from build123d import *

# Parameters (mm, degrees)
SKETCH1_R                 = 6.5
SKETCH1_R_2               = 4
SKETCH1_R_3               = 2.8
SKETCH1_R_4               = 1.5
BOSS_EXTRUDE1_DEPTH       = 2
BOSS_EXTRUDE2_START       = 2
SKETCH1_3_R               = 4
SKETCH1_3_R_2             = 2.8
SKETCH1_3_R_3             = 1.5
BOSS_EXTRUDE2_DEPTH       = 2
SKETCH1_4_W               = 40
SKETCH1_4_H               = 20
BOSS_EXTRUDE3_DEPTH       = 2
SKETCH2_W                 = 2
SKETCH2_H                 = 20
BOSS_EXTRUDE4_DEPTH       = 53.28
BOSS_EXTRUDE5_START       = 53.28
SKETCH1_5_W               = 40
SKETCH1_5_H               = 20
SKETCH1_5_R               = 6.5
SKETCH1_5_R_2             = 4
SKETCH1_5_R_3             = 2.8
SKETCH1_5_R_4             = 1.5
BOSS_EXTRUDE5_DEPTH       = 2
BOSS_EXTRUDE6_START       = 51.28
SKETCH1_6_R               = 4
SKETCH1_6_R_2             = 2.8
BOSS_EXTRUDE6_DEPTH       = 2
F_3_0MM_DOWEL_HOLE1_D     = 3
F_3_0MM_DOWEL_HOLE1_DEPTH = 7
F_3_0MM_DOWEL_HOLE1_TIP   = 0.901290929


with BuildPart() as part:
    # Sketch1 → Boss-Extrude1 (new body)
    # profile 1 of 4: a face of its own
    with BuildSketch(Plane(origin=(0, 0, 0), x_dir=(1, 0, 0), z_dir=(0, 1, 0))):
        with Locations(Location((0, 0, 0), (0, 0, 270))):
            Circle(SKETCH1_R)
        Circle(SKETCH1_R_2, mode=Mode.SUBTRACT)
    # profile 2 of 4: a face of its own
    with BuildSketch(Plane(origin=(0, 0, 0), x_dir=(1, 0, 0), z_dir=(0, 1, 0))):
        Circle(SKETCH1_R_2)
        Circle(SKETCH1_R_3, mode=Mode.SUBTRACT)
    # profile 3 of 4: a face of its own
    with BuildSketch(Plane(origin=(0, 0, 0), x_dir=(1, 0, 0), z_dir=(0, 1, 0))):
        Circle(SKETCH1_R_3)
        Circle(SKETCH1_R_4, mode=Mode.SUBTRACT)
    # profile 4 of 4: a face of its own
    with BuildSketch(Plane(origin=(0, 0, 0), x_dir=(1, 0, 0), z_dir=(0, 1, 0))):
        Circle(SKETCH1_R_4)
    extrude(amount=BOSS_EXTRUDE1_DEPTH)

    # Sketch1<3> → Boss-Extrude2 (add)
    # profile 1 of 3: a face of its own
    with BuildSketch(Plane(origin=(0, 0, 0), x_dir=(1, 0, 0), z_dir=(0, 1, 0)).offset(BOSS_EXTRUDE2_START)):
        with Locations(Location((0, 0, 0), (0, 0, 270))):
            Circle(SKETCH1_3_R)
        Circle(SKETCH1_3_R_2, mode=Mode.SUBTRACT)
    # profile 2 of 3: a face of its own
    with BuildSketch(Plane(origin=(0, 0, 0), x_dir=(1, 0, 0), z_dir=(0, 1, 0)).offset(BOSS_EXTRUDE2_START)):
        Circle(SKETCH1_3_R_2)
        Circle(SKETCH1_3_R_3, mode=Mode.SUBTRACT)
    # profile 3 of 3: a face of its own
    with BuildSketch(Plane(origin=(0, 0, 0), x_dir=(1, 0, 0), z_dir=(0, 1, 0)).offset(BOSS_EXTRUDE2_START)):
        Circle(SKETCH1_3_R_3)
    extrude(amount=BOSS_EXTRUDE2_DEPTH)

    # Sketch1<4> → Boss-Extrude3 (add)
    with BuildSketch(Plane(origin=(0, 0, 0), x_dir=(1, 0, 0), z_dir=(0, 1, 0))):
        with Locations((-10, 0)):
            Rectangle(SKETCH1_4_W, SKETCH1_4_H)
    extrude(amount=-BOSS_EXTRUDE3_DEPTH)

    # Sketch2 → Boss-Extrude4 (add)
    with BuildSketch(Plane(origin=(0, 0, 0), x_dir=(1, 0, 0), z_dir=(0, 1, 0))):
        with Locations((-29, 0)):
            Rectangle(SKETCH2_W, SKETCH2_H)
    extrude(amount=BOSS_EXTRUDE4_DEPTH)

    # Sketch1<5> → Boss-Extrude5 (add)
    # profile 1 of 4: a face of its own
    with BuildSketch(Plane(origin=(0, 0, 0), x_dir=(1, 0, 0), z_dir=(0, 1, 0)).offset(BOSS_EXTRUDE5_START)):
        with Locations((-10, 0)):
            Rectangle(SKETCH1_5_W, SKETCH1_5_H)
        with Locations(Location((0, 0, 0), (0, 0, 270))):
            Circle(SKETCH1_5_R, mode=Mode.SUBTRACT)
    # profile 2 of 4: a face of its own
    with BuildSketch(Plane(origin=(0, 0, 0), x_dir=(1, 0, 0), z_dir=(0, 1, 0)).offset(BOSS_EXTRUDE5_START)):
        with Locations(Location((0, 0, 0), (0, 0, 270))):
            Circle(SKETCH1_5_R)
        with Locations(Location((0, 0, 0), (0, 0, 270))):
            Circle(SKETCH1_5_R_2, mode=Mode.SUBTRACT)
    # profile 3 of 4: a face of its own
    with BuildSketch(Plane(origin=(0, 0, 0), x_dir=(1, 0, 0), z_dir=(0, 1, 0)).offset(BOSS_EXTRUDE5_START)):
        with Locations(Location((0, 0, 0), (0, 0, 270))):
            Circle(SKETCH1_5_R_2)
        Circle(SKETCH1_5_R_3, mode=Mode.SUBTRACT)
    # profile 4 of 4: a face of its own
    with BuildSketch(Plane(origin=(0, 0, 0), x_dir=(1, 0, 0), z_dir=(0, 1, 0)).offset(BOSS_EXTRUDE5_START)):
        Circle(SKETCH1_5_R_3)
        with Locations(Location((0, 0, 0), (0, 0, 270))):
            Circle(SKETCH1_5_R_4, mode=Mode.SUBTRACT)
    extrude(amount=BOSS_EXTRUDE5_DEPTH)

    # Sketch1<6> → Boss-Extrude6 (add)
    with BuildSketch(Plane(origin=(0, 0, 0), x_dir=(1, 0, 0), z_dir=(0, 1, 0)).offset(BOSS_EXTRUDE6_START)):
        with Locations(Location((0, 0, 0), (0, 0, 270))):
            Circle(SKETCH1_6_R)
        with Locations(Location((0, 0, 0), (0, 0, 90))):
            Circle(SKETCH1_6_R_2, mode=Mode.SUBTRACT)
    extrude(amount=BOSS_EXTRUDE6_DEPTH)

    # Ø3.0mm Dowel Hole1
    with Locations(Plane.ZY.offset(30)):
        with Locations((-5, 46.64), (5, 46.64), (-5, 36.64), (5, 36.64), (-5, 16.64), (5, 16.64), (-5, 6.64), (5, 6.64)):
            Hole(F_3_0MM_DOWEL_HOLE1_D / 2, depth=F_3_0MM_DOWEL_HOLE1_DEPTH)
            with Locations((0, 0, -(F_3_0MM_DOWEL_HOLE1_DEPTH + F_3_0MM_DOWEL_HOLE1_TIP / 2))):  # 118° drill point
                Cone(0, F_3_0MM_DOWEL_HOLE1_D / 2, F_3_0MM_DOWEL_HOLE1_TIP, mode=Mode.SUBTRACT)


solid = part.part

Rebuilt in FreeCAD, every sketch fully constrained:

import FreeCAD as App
import Part
import Sketcher
from FreeCAD import Vector

doc = App.newDocument("Part")
body = doc.addObject("PartDesign::Body", "Body")

sketch1 = doc.addObject("Sketcher::SketchObject", "Sketch")
body.addObject(sketch1)
sketch1.AttachmentSupport = (doc.XZ_Plane, [""])
sketch1.MapMode = "FlatFace"
sketch1.addGeometry(Part.Circle(Vector(0, 0, 0), Vector(0, 0, 1), 6), False)
sketch1.addConstraint([
    Sketcher.Constraint("Coincident", 0, 3, -1, 1),
    Sketcher.Constraint("Diameter", 0, 13.0),
])
pad1 = doc.addObject("PartDesign::Pad", "Pad")
body.addObject(pad1)
pad1.Profile = sketch1
pad1.Length = 2
pad1.Reversed = True

sketch2 = doc.addObject("Sketcher::SketchObject", "Sketch001")
body.addObject(sketch2)
sketch2.AttachmentSupport = (doc.XZ_Plane, [""])
sketch2.MapMode = "FlatFace"
sketch2.AttachmentOffset = App.Placement(Vector(0, 0, -2), App.Rotation())
sketch2.addGeometry(Part.Circle(Vector(0, 0, 0), Vector(0, 0, 1), 4), False)
sketch2.addConstraint([
    Sketcher.Constraint("Coincident", 0, 3, -1, 1),
    Sketcher.Constraint("Diameter", 0, 8.0),
])
pad2 = doc.addObject("PartDesign::Pad", "Pad001")
body.addObject(pad2)
pad2.Profile = sketch2
pad2.Length = 2
pad2.Reversed = True

sketch3 = doc.addObject("Sketcher::SketchObject", "Sketch002")
body.addObject(sketch3)
sketch3.AttachmentSupport = (doc.XZ_Plane, [""])
sketch3.MapMode = "FlatFace"
sketch3.addGeometry([
    Part.LineSegment(Vector(-30, -10, 0), Vector(-30, 10, 0)),
    Part.LineSegment(Vector(-30, 10, 0), Vector(10, 10, 0)),
    Part.LineSegment(Vector(10, 10, 0), Vector(10, -10, 0)),
    Part.LineSegment(Vector(10, -10, 0), Vector(-30, -10, 0)),
], False)
sketch3.addConstraint([
    Sketcher.Constraint("Coincident", 0, 2, 1, 1),
    Sketcher.Constraint("Coincident", 1, 2, 2, 1),
    Sketcher.Constraint("Coincident", 2, 2, 3, 1),
    Sketcher.Constraint("Coincident", 3, 2, 0, 1),
    Sketcher.Constraint("Vertical", 0),
    Sketcher.Constraint("Horizontal", 1),
    Sketcher.Constraint("Vertical", 2),
    Sketcher.Constraint("Horizontal", 3),
    Sketcher.Constraint("DistanceX", 1, 1, 1, 2, 40.0),
    Sketcher.Constraint("DistanceY", 0, 1, 0, 2, 20.0),
    Sketcher.Constraint("DistanceX", 0, 2, -1, 1, 30.0),
    Sketcher.Constraint("DistanceY", -1, 1, 0, 2, 10.0),
])
pad3 = doc.addObject("PartDesign::Pad", "Pad002")
body.addObject(pad3)
pad3.Profile = sketch3
pad3.Length = 2

sketch4 = doc.addObject("Sketcher::SketchObject", "Sketch003")
body.addObject(sketch4)
sketch4.AttachmentSupport = (doc.XZ_Plane, [""])
sketch4.MapMode = "FlatFace"
sketch4.addGeometry([
    Part.LineSegment(Vector(-30, -10, 0), Vector(-30, 10, 0)),
    Part.LineSegment(Vector(-30, 10, 0), Vector(-28, 10, 0)),
    Part.LineSegment(Vector(-28, 10, 0), Vector(-28, -10, 0)),
    Part.LineSegment(Vector(-28, -10, 0), Vector(-30, -10, 0)),
], False)
sketch4.addConstraint([
    Sketcher.Constraint("Coincident", 0, 2, 1, 1),
    Sketcher.Constraint("Coincident", 1, 2, 2, 1),
    Sketcher.Constraint("Coincident", 2, 2, 3, 1),
    Sketcher.Constraint("Coincident", 3, 2, 0, 1),
    Sketcher.Constraint("Vertical", 0),
    Sketcher.Constraint("Horizontal", 1),
    Sketcher.Constraint("Vertical", 2),
    Sketcher.Constraint("Horizontal", 3),
    Sketcher.Constraint("DistanceX", 1, 1, 1, 2, 2.0),
    Sketcher.Constraint("DistanceY", 0, 1, 0, 2, 20.0),
    Sketcher.Constraint("DistanceX", 0, 2, -1, 1, 30.0),
    Sketcher.Constraint("DistanceY", -1, 1, 0, 2, 10.0),
])
pad4 = doc.addObject("PartDesign::Pad", "Pad003")
body.addObject(pad4)
pad4.Profile = sketch4
pad4.Length = 53.28
pad4.Reversed = True

sketch5 = doc.addObject("Sketcher::SketchObject", "Sketch004")
body.addObject(sketch5)
sketch5.AttachmentSupport = (doc.XZ_Plane, [""])
sketch5.MapMode = "FlatFace"
sketch5.AttachmentOffset = App.Placement(Vector(0, 0, -53.28), App.Rotation())
sketch5.addGeometry([
    Part.LineSegment(Vector(-30, -10, 0), Vector(-30, 10, 0)),
    Part.LineSegment(Vector(-30, 10, 0), Vector(10, 10, 0)),
    Part.LineSegment(Vector(10, 10, 0), Vector(10, -10, 0)),
    Part.LineSegment(Vector(10, -10, 0), Vector(-30, -10, 0)),
    Part.Circle(Vector(0, 0, 0), Vector(0, 0, 1), 1.5),
], False)
sketch5.addConstraint([
    Sketcher.Constraint("Coincident", 0, 2, 1, 1),
    Sketcher.Constraint("Coincident", 1, 2, 2, 1),
    Sketcher.Constraint("Coincident", 2, 2, 3, 1),
    Sketcher.Constraint("Coincident", 3, 2, 0, 1),
    Sketcher.Constraint("Vertical", 0),
    Sketcher.Constraint("Horizontal", 1),
    Sketcher.Constraint("Vertical", 2),
    Sketcher.Constraint("Horizontal", 3),
    Sketcher.Constraint("Coincident", 4, 3, -1, 1),
    Sketcher.Constraint("Diameter", 4, 3.0),
    Sketcher.Constraint("DistanceX", 1, 1, 1, 2, 40.0),
    Sketcher.Constraint("DistanceY", 0, 1, 0, 2, 20.0),
    Sketcher.Constraint("DistanceX", 0, 2, -1, 1, 30.0),
    Sketcher.Constraint("DistanceY", -1, 1, 0, 2, 10.0),
])
pad5 = doc.addObject("PartDesign::Pad", "Pad004")
body.addObject(pad5)
pad5.Profile = sketch5
pad5.Length = 2
pad5.Reversed = True

sketch6 = doc.addObject("Sketcher::SketchObject", "Sketch005")
body.addObject(sketch6)
sketch6.AttachmentSupport = (doc.XZ_Plane, [""])
sketch6.MapMode = "FlatFace"
sketch6.AttachmentOffset = App.Placement(Vector(0, 0, -51.28), App.Rotation())
sketch6.addGeometry([
    Part.Circle(Vector(0, 0, 0), Vector(0, 0, 1), 4),
    Part.Circle(Vector(0, 0, 0), Vector(0, 0, 1), 2.8),
], False)
sketch6.addConstraint([
    Sketcher.Constraint("Coincident", 0, 3, -1, 1),
    Sketcher.Constraint("Coincident", 1, 3, -1, 1),
    Sketcher.Constraint("Diameter", 0, 8.0),
    Sketcher.Constraint("Diameter", 1, 5.6),
])
pad6 = doc.addObject("PartDesign::Pad", "Pad005")
body.addObject(pad6)
pad6.Profile = sketch6
pad6.Length = 2
pad6.Reversed = True

sketch7 = doc.addObject("Sketcher::SketchObject", "Sketch006")
body.addObject(sketch7)
sketch7.AttachmentSupport = (doc.YZ_Plane, [""])
sketch7.MapMode = "FlatFace"
sketch7.AttachmentOffset = App.Placement(Vector(0, 0, -30), App.Rotation())
sketch7.addGeometry([
    Part.Circle(Vector(46.6, -5, 0), Vector(0, 0, 1), 1.5),
    Part.Circle(Vector(46.6, 5, 0), Vector(0, 0, 1), 1.5),
    Part.Circle(Vector(36.6, -5, 0), Vector(0, 0, 1), 1.5),
    Part.Circle(Vector(36.6, 5, 0), Vector(0, 0, 1), 1.5),
    Part.Circle(Vector(16.6, -5, 0), Vector(0, 0, 1), 1.5),
    Part.Circle(Vector(16.6, 5, 0), Vector(0, 0, 1), 1.5),
    Part.Circle(Vector(6.6, -5, 0), Vector(0, 0, 1), 1.5),
    Part.Circle(Vector(6.6, 5, 0), Vector(0, 0, 1), 1.5),
], False)
sketch7.addConstraint([
    Sketcher.Constraint("Equal", 0, 1),
    Sketcher.Constraint("Equal", 1, 2),
    Sketcher.Constraint("Equal", 2, 3),
    Sketcher.Constraint("Equal", 3, 4),
    Sketcher.Constraint("Equal", 4, 5),
    Sketcher.Constraint("Equal", 5, 6),
    Sketcher.Constraint("Equal", 6, 7),
    Sketcher.Constraint("Symmetric", 0, 3, 1, 3, -1),
    Sketcher.Constraint("Symmetric", 2, 3, 3, 3, -1),
    Sketcher.Constraint("Symmetric", 4, 3, 5, 3, -1),
    Sketcher.Constraint("Symmetric", 6, 3, 7, 3, -1),
    Sketcher.Constraint("Horizontal", 0, 3, 2, 3),
    Sketcher.Constraint("Horizontal", 2, 3, 4, 3),
    Sketcher.Constraint("Horizontal", 4, 3, 6, 3),
    Sketcher.Constraint("Diameter", 0, 3.0),
    Sketcher.Constraint("DistanceY", 0, 3, -1, 1, 5.0),
    Sketcher.Constraint("DistanceX", 2, 3, 0, 3, 10.0),
    Sketcher.Constraint("DistanceX", 4, 3, 2, 3, 20.0),
    Sketcher.Constraint("DistanceX", 6, 3, 4, 3, 10.0),
    Sketcher.Constraint("DistanceX", -1, 1, 0, 3, 46.64),
])
doc.recompute()
hole = doc.addObject("PartDesign::Hole", "Hole")
body.addObject(hole)
hole.Profile = sketch7
hole.ThreadType = "None"
hole.Diameter = 3
hole.DepthType = "Dimension"
hole.Depth = 7
hole.DrillPoint = "Angled"
hole.DrillPointAngle = 118
hole.Reversed = True

doc.recompute()
